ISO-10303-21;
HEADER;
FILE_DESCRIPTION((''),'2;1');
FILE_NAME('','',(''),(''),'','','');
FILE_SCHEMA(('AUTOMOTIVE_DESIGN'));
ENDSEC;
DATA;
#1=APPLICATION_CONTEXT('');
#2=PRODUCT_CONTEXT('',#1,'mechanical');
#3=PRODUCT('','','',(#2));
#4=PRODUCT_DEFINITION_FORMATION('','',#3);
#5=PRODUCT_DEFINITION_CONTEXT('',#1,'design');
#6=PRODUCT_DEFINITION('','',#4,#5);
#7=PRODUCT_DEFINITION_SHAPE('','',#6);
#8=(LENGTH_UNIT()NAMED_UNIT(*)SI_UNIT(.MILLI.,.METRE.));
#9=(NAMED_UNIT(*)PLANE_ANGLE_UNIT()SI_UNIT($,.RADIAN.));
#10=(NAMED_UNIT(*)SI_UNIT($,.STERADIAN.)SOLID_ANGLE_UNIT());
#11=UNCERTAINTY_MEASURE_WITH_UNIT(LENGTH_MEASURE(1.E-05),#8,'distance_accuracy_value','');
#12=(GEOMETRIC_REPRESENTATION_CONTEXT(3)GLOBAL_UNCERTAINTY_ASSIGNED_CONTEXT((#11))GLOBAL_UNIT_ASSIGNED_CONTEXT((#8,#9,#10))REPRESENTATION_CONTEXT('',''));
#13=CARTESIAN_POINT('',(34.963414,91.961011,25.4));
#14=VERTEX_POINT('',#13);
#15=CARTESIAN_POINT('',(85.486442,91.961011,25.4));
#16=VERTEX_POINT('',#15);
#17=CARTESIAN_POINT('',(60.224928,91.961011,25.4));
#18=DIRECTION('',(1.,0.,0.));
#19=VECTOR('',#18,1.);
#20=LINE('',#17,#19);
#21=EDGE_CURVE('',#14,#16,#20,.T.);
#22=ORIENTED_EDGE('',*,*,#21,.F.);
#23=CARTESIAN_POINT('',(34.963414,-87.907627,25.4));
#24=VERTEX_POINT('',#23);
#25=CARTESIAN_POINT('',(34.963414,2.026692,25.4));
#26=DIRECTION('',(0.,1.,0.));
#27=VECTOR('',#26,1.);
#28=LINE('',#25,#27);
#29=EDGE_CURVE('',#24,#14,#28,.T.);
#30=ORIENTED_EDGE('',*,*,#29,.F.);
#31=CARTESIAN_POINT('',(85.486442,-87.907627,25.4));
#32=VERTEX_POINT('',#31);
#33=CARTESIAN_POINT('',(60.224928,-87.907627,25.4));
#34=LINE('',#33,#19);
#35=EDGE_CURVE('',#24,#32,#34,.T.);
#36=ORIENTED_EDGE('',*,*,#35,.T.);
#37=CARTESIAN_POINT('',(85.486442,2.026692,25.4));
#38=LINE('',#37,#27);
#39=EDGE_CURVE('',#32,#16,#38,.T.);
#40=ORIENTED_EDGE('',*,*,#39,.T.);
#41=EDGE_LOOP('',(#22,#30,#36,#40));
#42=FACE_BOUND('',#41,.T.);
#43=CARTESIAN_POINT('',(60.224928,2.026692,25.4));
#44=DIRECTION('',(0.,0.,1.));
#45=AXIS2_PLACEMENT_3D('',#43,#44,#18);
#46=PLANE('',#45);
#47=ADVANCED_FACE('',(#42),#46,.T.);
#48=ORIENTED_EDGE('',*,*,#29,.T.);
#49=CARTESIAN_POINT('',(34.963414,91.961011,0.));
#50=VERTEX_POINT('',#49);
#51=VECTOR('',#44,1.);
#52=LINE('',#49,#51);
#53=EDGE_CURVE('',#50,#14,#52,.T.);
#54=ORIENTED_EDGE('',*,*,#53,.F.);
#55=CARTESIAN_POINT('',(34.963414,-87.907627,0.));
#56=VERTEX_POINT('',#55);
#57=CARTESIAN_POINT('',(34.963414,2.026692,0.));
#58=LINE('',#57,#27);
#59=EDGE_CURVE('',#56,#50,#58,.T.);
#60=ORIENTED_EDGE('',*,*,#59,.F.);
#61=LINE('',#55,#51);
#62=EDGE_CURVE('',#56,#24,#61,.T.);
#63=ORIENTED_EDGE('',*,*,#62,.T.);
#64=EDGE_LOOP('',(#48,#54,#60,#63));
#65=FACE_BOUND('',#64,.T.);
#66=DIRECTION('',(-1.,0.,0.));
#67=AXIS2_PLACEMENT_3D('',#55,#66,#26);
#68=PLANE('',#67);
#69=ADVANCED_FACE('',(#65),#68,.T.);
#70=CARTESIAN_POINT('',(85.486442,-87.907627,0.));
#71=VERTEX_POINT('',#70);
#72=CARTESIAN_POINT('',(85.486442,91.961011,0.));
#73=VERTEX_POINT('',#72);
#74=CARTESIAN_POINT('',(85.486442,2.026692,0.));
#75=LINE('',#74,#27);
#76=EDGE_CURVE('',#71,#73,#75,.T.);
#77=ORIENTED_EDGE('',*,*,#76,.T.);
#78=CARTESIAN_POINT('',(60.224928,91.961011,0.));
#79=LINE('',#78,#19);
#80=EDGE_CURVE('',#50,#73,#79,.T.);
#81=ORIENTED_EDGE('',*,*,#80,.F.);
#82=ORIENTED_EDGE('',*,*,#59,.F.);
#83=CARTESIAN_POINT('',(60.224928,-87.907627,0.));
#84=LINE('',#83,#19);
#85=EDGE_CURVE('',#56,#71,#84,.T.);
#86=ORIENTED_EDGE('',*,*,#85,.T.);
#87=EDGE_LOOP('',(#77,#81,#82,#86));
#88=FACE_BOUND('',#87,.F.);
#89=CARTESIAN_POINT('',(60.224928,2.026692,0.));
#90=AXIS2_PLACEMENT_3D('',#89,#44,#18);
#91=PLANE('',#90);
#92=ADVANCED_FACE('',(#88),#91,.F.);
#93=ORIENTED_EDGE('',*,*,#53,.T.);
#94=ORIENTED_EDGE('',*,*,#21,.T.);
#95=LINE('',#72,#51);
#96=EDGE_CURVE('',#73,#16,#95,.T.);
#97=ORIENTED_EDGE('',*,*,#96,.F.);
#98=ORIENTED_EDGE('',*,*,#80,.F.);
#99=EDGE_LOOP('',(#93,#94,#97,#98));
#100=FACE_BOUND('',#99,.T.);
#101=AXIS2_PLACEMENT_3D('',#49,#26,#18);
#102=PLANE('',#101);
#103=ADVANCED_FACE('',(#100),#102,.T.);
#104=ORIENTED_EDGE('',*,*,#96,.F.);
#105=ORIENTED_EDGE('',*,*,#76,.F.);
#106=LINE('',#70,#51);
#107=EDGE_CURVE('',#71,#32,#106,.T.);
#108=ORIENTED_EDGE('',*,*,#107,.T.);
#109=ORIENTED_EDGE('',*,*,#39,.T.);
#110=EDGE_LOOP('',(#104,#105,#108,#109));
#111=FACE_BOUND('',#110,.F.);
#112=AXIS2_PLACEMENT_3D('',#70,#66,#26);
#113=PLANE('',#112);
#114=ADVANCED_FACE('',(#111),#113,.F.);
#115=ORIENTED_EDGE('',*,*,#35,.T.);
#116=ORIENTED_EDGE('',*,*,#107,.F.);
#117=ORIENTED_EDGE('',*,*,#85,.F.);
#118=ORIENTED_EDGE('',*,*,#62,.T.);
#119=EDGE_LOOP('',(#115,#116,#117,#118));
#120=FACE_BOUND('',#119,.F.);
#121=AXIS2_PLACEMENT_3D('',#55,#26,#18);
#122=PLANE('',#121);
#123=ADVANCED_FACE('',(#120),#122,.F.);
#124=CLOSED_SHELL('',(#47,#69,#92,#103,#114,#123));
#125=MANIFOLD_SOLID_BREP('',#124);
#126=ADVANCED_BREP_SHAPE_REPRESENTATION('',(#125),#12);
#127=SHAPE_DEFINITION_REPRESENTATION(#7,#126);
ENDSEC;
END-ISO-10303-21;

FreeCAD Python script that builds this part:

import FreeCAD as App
import Part
import Sketcher
from FreeCAD import Vector
Q = App.Units.Quantity

doc = App.newDocument("Part")
body = doc.addObject("PartDesign::Body", "Body")

sketch1 = body.newObject("Sketcher::SketchObject", "Sketch")
sketch1.AttachmentSupport = (doc.getObject("XY_Plane"), [""])
sketch1.MapMode = "FlatFace"
sketch1.addGeometry(Part.LineSegment(Vector(34.963414, 91.961011, 0), Vector(34.963414, -87.907627, 0)), False)
sketch1.addGeometry(Part.LineSegment(Vector(34.963414, -87.907627, 0), Vector(85.486442, -87.907627, 0)), False)
sketch1.addGeometry(Part.LineSegment(Vector(85.486442, -87.907627, 0), Vector(85.486442, 91.961011, 0)), False)
sketch1.addGeometry(Part.LineSegment(Vector(85.486442, 91.961011, 0), Vector(34.963414, 91.961011, 0)), False)
sketch1.addConstraint(Sketcher.Constraint("Coincident", 0, 2, 1, 1))
sketch1.addConstraint(Sketcher.Constraint("Coincident", 1, 2, 2, 1))
sketch1.addConstraint(Sketcher.Constraint("Coincident", 2, 2, 3, 1))
sketch1.addConstraint(Sketcher.Constraint("Coincident", 3, 2, 0, 1))
sketch1.addConstraint(Sketcher.Constraint("Vertical", 0))
sketch1.addConstraint(Sketcher.Constraint("Horizontal", 1))
sketch1.addConstraint(Sketcher.Constraint("Vertical", 2))
sketch1.addConstraint(Sketcher.Constraint("Horizontal", 3))
sketch1.addConstraint(Sketcher.Constraint("DistanceY", 0, 2, 0, 1, Q("179.868638 mm")))
sketch1.addConstraint(Sketcher.Constraint("DistanceX", 1, 1, 1, 2, Q("50.523028 mm")))
sketch1.addConstraint(Sketcher.Constraint("DistanceX", -1, 1, 1, 2, Q("85.486442 mm")))
sketch1.addConstraint(Sketcher.Constraint("DistanceY", -1, 1, 2, 2, Q("91.961011 mm")))
pad1 = body.newObject("PartDesign::Pad", "Pad")
pad1.Profile = sketch1
pad1.Length = Q("1 in")

doc.recompute()
